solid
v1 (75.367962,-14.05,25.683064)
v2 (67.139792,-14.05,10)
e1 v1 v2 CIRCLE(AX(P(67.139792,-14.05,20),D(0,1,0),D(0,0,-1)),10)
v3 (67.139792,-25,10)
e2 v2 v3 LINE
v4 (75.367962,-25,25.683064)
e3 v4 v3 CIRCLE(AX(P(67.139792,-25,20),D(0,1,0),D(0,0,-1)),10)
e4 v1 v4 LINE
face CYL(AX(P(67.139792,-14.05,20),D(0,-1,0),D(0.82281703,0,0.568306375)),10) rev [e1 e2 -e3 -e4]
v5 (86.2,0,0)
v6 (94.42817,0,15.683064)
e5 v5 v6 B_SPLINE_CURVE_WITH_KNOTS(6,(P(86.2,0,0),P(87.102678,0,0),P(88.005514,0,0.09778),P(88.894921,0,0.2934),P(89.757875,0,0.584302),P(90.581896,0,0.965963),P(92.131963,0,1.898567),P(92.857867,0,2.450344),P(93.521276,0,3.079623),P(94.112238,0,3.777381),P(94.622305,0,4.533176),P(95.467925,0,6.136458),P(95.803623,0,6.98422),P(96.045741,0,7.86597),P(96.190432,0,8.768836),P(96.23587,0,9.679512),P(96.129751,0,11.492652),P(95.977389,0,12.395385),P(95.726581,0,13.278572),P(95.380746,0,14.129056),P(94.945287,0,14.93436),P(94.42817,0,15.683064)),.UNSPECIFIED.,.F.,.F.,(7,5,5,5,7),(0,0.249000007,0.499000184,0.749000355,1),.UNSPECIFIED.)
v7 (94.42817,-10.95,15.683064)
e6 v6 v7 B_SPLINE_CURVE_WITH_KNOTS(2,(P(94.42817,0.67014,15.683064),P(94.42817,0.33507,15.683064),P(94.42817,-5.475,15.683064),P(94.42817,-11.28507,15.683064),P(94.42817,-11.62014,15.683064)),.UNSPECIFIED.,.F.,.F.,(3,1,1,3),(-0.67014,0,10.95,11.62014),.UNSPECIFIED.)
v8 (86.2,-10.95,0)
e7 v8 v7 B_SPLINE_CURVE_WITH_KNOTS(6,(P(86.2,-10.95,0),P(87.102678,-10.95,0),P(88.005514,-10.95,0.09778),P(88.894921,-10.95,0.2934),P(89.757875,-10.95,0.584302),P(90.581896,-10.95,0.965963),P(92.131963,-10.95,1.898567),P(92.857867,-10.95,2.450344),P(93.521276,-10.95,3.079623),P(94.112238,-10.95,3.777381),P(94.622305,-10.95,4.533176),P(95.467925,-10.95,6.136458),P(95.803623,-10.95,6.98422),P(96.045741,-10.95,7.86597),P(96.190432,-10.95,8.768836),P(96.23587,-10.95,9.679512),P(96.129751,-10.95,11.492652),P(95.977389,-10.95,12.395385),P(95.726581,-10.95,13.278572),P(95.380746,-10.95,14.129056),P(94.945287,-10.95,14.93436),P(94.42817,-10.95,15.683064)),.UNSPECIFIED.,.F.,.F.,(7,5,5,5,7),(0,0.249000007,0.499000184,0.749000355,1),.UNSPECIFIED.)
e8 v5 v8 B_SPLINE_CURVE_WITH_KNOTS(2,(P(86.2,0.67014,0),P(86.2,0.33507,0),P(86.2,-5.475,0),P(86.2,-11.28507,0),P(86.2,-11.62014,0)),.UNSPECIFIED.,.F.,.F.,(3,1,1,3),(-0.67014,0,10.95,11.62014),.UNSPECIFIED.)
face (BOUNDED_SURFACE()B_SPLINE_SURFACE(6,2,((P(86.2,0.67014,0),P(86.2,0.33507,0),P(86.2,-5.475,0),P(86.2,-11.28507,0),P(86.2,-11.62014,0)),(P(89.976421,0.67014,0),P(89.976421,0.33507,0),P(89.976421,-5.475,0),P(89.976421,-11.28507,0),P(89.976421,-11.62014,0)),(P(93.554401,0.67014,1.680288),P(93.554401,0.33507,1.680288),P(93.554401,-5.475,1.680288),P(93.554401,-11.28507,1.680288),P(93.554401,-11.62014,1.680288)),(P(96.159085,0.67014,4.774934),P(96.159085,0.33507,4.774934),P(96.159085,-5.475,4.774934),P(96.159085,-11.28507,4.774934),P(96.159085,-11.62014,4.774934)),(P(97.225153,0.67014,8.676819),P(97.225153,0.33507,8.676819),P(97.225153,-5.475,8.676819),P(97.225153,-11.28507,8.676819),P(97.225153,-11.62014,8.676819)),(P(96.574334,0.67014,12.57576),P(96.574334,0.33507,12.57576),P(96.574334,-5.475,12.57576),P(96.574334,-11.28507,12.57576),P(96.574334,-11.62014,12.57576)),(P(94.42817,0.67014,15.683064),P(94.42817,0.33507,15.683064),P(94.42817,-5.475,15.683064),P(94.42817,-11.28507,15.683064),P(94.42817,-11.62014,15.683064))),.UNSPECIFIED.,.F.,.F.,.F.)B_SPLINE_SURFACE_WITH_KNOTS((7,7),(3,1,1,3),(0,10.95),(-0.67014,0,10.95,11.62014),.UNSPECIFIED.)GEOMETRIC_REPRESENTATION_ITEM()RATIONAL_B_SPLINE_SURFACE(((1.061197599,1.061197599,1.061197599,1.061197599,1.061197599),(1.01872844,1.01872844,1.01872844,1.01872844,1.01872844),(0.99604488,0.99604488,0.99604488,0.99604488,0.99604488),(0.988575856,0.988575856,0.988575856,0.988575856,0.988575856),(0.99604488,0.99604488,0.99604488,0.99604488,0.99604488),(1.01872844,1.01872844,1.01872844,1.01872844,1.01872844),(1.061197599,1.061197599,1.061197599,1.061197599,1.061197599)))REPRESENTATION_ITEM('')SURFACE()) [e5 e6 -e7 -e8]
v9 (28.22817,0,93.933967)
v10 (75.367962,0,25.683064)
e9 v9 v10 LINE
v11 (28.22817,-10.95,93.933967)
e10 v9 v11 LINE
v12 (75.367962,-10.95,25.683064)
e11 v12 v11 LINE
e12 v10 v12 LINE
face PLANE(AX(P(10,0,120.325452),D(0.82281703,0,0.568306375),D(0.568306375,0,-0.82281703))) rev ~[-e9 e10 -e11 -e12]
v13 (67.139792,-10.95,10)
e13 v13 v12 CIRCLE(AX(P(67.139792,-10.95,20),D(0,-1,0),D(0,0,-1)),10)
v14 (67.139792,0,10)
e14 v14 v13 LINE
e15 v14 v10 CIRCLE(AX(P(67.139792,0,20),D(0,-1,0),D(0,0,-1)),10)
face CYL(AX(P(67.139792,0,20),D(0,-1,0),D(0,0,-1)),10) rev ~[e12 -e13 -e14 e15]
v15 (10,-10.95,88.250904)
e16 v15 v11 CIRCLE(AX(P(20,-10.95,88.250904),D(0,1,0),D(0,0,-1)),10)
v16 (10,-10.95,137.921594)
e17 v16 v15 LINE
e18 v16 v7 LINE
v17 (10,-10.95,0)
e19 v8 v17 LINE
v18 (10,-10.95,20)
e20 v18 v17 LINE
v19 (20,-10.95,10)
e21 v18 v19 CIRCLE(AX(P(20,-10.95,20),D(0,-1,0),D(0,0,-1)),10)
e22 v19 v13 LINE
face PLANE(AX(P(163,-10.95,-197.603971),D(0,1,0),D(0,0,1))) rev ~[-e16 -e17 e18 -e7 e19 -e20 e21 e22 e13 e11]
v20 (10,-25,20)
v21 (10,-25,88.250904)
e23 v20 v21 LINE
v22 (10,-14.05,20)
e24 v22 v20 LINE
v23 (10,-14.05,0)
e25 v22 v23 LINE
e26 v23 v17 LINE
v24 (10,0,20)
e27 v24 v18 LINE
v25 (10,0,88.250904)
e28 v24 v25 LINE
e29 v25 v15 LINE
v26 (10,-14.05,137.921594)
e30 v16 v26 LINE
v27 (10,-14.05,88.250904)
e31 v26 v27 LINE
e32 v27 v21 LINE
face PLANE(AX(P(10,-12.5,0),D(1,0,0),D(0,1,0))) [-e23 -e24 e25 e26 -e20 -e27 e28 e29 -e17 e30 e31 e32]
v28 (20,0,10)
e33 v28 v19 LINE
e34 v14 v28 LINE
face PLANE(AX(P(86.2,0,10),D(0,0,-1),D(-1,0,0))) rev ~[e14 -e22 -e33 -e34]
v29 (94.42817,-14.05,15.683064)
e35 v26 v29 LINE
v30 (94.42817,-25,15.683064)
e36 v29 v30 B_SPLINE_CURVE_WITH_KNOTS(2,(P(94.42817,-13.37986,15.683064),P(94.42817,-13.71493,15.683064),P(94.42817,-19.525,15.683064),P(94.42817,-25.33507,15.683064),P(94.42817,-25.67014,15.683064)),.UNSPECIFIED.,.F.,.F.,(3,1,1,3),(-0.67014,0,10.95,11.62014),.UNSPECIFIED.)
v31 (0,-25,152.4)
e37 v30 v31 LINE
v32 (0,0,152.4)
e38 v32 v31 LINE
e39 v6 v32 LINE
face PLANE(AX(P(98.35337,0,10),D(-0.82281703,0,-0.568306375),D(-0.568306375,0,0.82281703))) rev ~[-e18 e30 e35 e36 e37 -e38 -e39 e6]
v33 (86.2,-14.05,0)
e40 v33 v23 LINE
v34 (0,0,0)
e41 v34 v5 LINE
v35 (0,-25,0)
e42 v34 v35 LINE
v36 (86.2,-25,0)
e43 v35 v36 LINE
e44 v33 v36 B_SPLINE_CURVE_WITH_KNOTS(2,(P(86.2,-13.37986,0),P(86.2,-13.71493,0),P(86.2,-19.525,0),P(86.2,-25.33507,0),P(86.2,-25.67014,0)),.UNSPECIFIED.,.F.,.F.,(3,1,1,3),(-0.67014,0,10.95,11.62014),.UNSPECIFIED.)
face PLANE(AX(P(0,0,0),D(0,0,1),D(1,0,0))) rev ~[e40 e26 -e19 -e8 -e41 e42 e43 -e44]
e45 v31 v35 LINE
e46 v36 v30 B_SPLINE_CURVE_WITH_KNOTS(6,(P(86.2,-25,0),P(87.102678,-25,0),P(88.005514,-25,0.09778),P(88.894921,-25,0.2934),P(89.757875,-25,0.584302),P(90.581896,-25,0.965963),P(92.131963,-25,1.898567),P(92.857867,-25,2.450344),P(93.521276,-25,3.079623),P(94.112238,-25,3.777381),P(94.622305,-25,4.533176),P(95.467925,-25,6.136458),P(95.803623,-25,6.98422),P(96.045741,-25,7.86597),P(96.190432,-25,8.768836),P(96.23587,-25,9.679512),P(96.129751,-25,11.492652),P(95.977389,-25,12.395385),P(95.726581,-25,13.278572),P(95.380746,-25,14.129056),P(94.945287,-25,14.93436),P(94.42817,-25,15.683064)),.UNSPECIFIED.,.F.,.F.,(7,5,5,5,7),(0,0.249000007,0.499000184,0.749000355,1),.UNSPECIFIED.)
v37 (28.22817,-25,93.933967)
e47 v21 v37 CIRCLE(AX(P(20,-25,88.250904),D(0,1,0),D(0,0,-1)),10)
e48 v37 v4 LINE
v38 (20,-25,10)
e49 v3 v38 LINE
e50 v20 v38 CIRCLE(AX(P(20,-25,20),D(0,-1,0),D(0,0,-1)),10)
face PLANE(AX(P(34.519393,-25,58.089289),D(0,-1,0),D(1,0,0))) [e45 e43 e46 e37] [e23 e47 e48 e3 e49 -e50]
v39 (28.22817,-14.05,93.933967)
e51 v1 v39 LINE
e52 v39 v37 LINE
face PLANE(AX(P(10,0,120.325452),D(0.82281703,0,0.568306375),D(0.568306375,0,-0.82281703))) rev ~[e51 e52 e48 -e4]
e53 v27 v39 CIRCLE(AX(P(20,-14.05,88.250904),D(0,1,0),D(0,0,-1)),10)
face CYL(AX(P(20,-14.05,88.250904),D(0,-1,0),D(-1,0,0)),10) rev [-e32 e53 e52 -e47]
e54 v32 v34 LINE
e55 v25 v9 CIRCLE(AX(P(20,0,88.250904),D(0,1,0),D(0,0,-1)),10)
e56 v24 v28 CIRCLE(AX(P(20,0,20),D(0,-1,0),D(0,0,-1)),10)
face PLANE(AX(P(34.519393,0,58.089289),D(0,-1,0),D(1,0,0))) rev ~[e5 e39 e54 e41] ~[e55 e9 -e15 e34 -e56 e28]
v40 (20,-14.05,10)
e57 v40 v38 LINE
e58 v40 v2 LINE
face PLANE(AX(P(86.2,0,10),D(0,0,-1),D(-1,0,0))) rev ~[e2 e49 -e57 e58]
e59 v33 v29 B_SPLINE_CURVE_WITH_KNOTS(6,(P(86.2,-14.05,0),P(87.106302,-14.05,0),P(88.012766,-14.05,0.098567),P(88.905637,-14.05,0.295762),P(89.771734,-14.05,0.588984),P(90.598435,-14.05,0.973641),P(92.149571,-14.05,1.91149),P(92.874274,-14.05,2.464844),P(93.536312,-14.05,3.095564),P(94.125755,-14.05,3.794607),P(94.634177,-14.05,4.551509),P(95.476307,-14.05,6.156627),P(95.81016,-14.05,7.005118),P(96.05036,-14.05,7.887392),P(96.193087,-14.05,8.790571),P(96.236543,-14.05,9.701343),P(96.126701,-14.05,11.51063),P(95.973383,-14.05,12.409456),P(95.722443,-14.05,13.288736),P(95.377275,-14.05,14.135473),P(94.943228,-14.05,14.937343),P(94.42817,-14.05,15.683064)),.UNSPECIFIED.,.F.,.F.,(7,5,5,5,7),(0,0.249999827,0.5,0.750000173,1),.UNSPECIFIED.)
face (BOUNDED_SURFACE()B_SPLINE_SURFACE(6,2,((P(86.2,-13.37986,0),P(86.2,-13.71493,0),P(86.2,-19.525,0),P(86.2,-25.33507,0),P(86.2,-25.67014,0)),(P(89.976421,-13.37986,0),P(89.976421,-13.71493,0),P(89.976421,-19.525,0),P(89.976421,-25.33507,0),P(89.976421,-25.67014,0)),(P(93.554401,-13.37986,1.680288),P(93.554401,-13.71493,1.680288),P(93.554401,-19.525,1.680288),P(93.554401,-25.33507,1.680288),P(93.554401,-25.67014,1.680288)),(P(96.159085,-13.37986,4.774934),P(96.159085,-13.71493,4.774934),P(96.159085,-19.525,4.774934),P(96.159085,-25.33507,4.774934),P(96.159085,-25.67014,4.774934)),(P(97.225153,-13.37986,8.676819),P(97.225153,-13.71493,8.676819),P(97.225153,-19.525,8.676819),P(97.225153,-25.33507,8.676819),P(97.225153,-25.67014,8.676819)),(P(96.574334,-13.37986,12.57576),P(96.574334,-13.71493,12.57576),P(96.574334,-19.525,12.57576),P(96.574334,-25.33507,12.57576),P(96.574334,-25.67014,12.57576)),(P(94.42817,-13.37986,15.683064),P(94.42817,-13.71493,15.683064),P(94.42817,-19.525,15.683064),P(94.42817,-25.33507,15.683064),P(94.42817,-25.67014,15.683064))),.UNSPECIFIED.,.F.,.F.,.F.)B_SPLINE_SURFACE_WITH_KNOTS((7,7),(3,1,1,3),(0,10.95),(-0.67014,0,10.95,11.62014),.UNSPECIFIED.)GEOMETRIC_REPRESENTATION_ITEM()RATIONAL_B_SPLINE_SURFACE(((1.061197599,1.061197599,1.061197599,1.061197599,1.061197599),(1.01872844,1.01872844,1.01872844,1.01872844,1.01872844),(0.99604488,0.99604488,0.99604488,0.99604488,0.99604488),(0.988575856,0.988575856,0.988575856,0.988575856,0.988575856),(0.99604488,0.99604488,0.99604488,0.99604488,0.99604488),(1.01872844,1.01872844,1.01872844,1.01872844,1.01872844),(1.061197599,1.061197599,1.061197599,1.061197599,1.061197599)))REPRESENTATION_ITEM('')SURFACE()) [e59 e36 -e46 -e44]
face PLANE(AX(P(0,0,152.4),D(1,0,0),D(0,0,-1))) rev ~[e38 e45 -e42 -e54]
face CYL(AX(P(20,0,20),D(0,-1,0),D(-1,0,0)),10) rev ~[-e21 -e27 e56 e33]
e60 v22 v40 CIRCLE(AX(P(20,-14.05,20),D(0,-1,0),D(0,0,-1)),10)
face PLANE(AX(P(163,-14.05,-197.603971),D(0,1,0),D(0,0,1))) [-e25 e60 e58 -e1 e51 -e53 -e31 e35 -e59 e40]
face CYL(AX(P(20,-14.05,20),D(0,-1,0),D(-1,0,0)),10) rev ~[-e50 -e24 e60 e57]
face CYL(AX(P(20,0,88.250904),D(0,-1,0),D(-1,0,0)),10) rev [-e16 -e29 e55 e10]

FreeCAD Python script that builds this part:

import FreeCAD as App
import Part
import Sketcher
Q = App.Units.Quantity


def edges_at(feature, points):
    """Names of the edges that pass closest to the given points."""
    edges = feature.Shape.Edges
    near = lambda p: min(range(len(edges)), key=lambda i: edges[i].distToShape(Part.Vertex(*p))[0])
    return sorted({f"Edge{near(p) + 1}" for p in points})


def add_polygon(sketch, points):
    """Adds a closed chain of lines whose ends are joined by coincident constraints."""
    first, n = sketch.GeometryCount, len(points)
    for a, b in zip(points, points[1:] + points[:1]):
        sketch.addGeometry(Part.LineSegment(App.Vector(*a, 0), App.Vector(*b, 0)), False)
    for i in range(n):
        sketch.addConstraint(Sketcher.Constraint("Coincident", first + i, 2, first + (i + 1) % n, 1))

doc = App.newDocument("Part")
params = doc.addObject("Spreadsheet::Sheet", "Params")
for row, (alias, value) in enumerate([
    ("sketch1_width", "76.2 mm"),
    ("sketch1_height", "152.4 mm"),
    ("pad1_length", "25 mm"),
    ("sketch2_width", "3.1 mm"),
    ("pocket1_length", "153 mm"),
    ("fillet_radius", "10 mm"),
], start=1):
    params.set(f"A{row}", alias)
    params.set(f"B{row}", "=" + value)
    params.setAlias(f"B{row}", alias)

body = doc.addObject("PartDesign::Body", "Body")

sketch1 = body.newObject("Sketcher::SketchObject", "Sketch")
sketch1.AttachmentSupport = (doc.getObject("XZ_Plane"), [""])
sketch1.MapMode = "FlatFace"
add_polygon(sketch1, [(0, 0), (105, 0), (98, 10), (0, 152)])
add_polygon(sketch1, [(86, 10), (10, 10), (10, 120)])
sketch1.addConstraint(Sketcher.Constraint("Horizontal", 0))
sketch1.addConstraint(Sketcher.Constraint("Vertical", 3))
sketch1.addConstraint(Sketcher.Constraint("Horizontal", 4))
sketch1.addConstraint(Sketcher.Constraint("Vertical", 5))
sketch1.addConstraint(Sketcher.Constraint("Coincident", 3, 2, -1, 1))
sketch1.addConstraint(Sketcher.Constraint("Parallel", 1, 2))
sketch1.addConstraint(Sketcher.Constraint("Parallel", 2, 6))
sketch1.addConstraint(Sketcher.Constraint("Horizontal", 1, 2, 4, 2))
sketch1.addConstraint(Sketcher.Constraint("DistanceX", 4, 2, 4, 1, Q("76.2 mm")))
sketch1.addConstraint(Sketcher.Constraint("DistanceY", 3, 2, 3, 1, Q("152.4 mm")))
sketch1.addConstraint(Sketcher.Constraint("DistanceY", -1, 1, 1, 2, Q("10 mm")))
sketch1.addConstraint(Sketcher.Constraint("DistanceX", -1, 1, 4, 2, Q("10 mm")))
sketch1.addConstraint(Sketcher.Constraint("DistanceX", 0, 1, 0, 2, Q("105.260208 mm")))
sketch1.setExpression("Constraints[15]", "Params.sketch1_width")
sketch1.setExpression("Constraints[16]", "Params.sketch1_height")
pad1 = body.newObject("PartDesign::Pad", "Pad")
pad1.Profile = sketch1
pad1.setExpression("Length", "Params.pad1_length")

sketch2 = body.newObject("Sketcher::SketchObject", "Sketch001")
sketch2.AttachmentSupport = (doc.getObject("YZ_Plane"), [""])
sketch2.MapMode = "FlatFace"
sketch2.AttachmentOffset = App.Placement(App.Vector(0, 0, 163), App.Rotation())
add_polygon(sketch2, [(-14.1, 197.6), (-14.1, -197.6), (-10.9, -197.6), (-10.9, 197.6)])
sketch2.addConstraint(Sketcher.Constraint("Vertical", 0))
sketch2.addConstraint(Sketcher.Constraint("Horizontal", 1))
sketch2.addConstraint(Sketcher.Constraint("Vertical", 2))
sketch2.addConstraint(Sketcher.Constraint("Horizontal", 3))
sketch2.addConstraint(Sketcher.Constraint("DistanceX", 1, 1, 1, 2, Q("3.1 mm")))
sketch2.addConstraint(Sketcher.Constraint("DistanceX", 0, 2, -1, 1, Q("14.05 mm")))
sketch2.addConstraint(Sketcher.Constraint("DistanceY", 0, 2, 0, 1, Q("395.207942 mm")))
sketch2.addConstraint(Sketcher.Constraint("DistanceY", 0, 2, -1, 1, Q("197.603971 mm")))
sketch2.setExpression("Constraints[8]", "Params.sketch2_width")
pocket1 = body.newObject("PartDesign::Pocket", "Pocket")
pocket1.Profile = sketch2
pocket1.setExpression("Length", "Params.pocket1_length")
doc.recompute()

fillet = body.newObject("PartDesign::Fillet", "Fillet")
fillet.Base = (pocket1, edges_at(pocket1, [
    (105.26, -19.525, 0),
    (105.26, -5.475, 0),
    (10, -19.525, 10),
    (10, -5.475, 10),
    (10, -19.525, 120.325),
    (10, -5.475, 120.325),
    (86.2, -19.525, 10),
    (86.2, -5.475, 10),
]))
fillet.setExpression("Radius", "Params.fillet_radius")

doc.recompute()
